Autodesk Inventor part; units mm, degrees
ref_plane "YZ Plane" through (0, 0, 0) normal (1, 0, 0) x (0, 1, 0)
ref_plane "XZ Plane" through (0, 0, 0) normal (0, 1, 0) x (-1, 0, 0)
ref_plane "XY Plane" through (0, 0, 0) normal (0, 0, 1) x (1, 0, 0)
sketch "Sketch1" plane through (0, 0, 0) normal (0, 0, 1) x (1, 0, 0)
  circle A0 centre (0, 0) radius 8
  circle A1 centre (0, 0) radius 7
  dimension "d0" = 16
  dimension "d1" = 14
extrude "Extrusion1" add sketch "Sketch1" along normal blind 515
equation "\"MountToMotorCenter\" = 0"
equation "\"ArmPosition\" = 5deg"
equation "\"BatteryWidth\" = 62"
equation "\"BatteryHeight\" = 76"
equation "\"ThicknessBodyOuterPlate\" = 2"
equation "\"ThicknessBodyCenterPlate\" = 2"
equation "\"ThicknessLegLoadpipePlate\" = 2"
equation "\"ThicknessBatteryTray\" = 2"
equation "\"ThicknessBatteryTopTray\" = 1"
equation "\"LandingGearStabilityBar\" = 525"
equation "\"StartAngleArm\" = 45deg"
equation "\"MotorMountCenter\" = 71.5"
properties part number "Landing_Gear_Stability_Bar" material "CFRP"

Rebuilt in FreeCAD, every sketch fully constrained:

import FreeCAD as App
import Part
import Sketcher

V = App.Vector

doc = App.newDocument("Part")
body = doc.addObject("PartDesign::Body", "Body")

# Sketch on XY plane
sketch1 = body.newObject("Sketcher::SketchObject", "Sketch")
sketch1.AttachmentSupport = (doc.getObject("XY_Plane"), [""])
sketch1.MapMode = "FlatFace"
sketch1.addGeometry([
    Part.Circle(V(0, 0, 0), V(0, 0, 1), 8),
    Part.Circle(V(0, 0, 0), V(0, 0, 1), 7),
], False)
sketch1.addConstraint([
    Sketcher.Constraint("Coincident", 0, 3, -1, 1),
    Sketcher.Constraint("Coincident", 1, 3, -1, 1),
    Sketcher.Constraint("Diameter", 0, 16.0),
    Sketcher.Constraint("Diameter", 1, 14.0),
])
pad1 = body.newObject("PartDesign::Pad", "Pad")
pad1.Profile = sketch1
pad1.Length = 515

doc.recompute()
